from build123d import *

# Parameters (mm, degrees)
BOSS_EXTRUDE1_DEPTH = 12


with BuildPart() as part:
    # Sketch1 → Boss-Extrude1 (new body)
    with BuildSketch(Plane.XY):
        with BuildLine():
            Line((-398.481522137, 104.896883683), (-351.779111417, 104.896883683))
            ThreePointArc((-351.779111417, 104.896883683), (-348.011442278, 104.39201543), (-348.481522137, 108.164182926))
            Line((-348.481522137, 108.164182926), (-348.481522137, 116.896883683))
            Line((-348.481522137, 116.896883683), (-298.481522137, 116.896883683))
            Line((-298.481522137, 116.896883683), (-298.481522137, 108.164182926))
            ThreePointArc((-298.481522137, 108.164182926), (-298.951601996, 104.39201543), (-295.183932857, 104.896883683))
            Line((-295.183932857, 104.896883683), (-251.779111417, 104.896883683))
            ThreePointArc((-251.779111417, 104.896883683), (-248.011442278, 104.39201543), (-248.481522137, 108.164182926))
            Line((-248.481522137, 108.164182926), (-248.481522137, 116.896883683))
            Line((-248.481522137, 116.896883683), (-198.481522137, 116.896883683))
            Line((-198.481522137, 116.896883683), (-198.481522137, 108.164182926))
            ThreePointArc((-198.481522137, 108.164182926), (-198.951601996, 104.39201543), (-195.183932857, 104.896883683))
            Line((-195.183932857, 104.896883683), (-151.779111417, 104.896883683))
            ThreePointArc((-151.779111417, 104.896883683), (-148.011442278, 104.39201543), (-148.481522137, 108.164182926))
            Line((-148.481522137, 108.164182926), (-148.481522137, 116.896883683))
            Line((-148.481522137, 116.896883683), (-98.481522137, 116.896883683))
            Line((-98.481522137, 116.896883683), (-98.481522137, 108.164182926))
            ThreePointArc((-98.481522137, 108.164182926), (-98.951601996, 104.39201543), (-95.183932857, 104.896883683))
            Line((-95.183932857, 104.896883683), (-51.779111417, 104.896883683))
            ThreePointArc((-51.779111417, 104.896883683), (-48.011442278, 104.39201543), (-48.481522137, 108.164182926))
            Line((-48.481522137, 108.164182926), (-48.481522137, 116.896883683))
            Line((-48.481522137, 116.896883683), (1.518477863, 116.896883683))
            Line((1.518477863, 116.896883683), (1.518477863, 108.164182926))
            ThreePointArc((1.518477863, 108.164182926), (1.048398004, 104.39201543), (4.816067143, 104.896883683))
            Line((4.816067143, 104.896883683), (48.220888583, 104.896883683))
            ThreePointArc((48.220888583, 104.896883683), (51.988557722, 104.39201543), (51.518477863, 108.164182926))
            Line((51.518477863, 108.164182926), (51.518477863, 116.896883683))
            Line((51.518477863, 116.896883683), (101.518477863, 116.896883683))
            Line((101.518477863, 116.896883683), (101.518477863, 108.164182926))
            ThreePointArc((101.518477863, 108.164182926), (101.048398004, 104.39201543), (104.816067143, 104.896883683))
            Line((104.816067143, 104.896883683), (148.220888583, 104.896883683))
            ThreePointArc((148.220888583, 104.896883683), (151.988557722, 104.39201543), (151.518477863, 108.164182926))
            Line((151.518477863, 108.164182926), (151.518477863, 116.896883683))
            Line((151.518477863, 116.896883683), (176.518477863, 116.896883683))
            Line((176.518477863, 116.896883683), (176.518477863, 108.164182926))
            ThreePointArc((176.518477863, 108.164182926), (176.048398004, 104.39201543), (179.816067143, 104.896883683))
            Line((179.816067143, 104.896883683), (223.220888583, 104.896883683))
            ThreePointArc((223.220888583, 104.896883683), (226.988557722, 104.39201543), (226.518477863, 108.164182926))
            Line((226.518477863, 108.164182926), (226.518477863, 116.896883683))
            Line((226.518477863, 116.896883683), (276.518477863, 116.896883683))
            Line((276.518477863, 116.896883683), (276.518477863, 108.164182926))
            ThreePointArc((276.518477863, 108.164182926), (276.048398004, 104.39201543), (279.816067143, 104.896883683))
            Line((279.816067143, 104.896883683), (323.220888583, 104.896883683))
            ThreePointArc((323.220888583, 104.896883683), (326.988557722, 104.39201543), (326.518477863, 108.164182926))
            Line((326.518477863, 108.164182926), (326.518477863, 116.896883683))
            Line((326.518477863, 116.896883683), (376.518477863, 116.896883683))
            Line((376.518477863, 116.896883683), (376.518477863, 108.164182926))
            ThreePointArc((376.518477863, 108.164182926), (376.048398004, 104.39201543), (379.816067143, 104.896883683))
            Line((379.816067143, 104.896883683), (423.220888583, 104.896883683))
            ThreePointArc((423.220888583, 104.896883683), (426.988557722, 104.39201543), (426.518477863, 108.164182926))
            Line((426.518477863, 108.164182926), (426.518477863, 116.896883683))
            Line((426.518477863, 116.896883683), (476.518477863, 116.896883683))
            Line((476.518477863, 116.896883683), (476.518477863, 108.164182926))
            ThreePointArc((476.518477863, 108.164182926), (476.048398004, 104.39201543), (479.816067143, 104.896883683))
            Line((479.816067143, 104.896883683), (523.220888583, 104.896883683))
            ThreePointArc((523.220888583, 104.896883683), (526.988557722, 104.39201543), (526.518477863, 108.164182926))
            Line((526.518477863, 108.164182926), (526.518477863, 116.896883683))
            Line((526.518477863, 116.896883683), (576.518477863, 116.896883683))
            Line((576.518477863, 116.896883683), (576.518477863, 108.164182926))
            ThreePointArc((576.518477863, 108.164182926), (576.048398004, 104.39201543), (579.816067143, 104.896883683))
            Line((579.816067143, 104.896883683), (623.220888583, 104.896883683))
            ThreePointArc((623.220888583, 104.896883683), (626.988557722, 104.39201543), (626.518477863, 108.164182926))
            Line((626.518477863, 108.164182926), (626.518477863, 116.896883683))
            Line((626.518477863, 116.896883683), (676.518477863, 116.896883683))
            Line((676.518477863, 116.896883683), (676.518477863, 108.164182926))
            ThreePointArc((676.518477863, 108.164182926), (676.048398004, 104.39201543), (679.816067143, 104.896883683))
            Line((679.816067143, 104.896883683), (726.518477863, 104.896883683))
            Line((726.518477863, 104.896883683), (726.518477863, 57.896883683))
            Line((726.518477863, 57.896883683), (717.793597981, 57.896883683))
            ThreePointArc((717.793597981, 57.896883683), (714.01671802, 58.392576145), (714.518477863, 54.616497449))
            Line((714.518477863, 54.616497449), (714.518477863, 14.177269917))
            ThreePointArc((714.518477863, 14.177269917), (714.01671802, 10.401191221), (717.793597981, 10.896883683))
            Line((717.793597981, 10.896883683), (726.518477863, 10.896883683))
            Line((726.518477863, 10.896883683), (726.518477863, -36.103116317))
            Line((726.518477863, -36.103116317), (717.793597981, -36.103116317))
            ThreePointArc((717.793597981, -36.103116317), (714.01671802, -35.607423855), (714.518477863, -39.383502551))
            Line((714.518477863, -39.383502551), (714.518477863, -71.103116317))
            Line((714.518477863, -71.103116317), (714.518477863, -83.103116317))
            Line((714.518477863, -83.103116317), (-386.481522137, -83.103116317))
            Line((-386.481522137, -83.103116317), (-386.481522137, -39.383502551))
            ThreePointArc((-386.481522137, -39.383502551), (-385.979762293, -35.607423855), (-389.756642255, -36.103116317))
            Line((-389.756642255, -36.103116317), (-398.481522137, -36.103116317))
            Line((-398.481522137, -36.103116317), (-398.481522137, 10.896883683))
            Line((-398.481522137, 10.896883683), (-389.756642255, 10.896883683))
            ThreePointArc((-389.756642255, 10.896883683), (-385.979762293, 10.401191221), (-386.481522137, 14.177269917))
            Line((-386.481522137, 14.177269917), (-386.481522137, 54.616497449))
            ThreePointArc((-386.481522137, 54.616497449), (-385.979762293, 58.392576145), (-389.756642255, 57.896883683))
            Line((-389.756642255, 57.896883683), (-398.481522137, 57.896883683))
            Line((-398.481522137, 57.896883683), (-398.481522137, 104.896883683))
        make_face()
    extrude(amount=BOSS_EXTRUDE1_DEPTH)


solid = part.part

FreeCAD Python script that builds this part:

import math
import FreeCAD as App
import Part
import Sketcher

V = App.Vector
Q = App.Units.Quantity

doc = App.newDocument("Part")
body = doc.addObject("PartDesign::Body", "Body")

# Sketch on XY plane
sketch1 = doc.addObject("Sketcher::SketchObject", "Sketch")
body.addObject(sketch1)
sketch1.AttachmentSupport = (doc.XY_Plane, [""])
sketch1.MapMode = "FlatFace"
sketch1.addGeometry(Part.LineSegment(V(-351.8, 104.9, 0), V(-398.5, 104.9, 0)), False)
sketch1.addGeometry(Part.LineSegment(V(-398.5, 104.9, 0), V(-398.5, 57.9, 0)), False)
sketch1.addGeometry(Part.LineSegment(V(-398.5, 57.9, 0), V(-389.8, 57.9, 0)), False)
sketch1.addGeometry(Part.ArcOfCircle(Part.Circle(V(-387.7, 56.7, 0), V(0, 0, 1), 2.4), math.radians(-60), math.radians(150)), False)
sketch1.addGeometry(Part.LineSegment(V(-386.5, 54.6, 0), V(-386.5, 14.2, 0)), False)
sketch1.addGeometry(Part.ArcOfCircle(Part.Circle(V(-387.7, 12.1, 0), V(0, 0, 1), 2.4), math.radians(-150), math.radians(60)), False)
sketch1.addGeometry(Part.LineSegment(V(-389.8, 10.9, 0), V(-398.5, 10.9, 0)), False)
sketch1.addGeometry(Part.LineSegment(V(-398.5, 10.9, 0), V(-398.5, -36.1, 0)), False)
sketch1.addGeometry(Part.LineSegment(V(-398.5, -36.1, 0), V(-389.8, -36.1, 0)), False)
sketch1.addGeometry(Part.ArcOfCircle(Part.Circle(V(-387.7, -37.3, 0), V(0, 0, 1), 2.4), math.radians(-60), math.radians(150)), False)
sketch1.addGeometry(Part.LineSegment(V(-386.5, -39.4, 0), V(-386.5, -83.1, 0)), False)
sketch1.addGeometry(Part.LineSegment(V(-386.5, -83.1, 0), V(714.5, -83.1, 0)), False)
sketch1.addGeometry(Part.LineSegment(V(714.5, -83.1, 0), V(714.5, -39.4, 0)), False)
sketch1.addGeometry(Part.ArcOfCircle(Part.Circle(V(715.7, -37.3, 0), V(0, 0, 1), 2.4), math.radians(30), math.radians(240)), False)
sketch1.addGeometry(Part.LineSegment(V(717.8, -36.1, 0), V(726.5, -36.1, 0)), False)
sketch1.addGeometry(Part.LineSegment(V(726.5, -36.1, 0), V(726.5, 10.9, 0)), False)
sketch1.addGeometry(Part.LineSegment(V(726.5, 10.9, 0), V(717.8, 10.9, 0)), False)
sketch1.addGeometry(Part.ArcOfCircle(Part.Circle(V(715.7, 12.1, 0), V(0, 0, 1), 2.4), math.radians(120), math.radians(330)), False)
sketch1.addGeometry(Part.LineSegment(V(714.5, 14.2, 0), V(714.5, 54.6, 0)), False)
sketch1.addGeometry(Part.ArcOfCircle(Part.Circle(V(715.7, 56.7, 0), V(0, 0, 1), 2.4), math.radians(30), math.radians(240)), False)
sketch1.addGeometry(Part.LineSegment(V(717.8, 57.9, 0), V(726.5, 57.9, 0)), False)
sketch1.addGeometry(Part.LineSegment(V(726.5, 57.9, 0), V(726.5, 104.9, 0)), False)
sketch1.addGeometry(Part.LineSegment(V(726.5, 104.9, 0), V(679.8, 104.9, 0)), False)
sketch1.addGeometry(Part.ArcOfCircle(Part.Circle(V(677.7, 106.1, 0), V(0, 0, 1), 2.4), math.radians(121), math.radians(330)), False)
sketch1.addGeometry(Part.LineSegment(V(676.5, 108.2, 0), V(676.5, 116.9, 0)), False)
sketch1.addGeometry(Part.LineSegment(V(676.5, 116.9, 0), V(626.5, 116.9, 0)), False)
sketch1.addGeometry(Part.LineSegment(V(626.5, 116.9, 0), V(626.5, 108.2, 0)), False)
sketch1.addGeometry(Part.ArcOfCircle(Part.Circle(V(625.3, 106.1, 0), V(0, 0, 1), 2.4), math.radians(-150), math.radians(59)), False)
sketch1.addGeometry(Part.LineSegment(V(623.2, 104.9, 0), V(579.8, 104.9, 0)), False)
sketch1.addGeometry(Part.ArcOfCircle(Part.Circle(V(577.7, 106.1, 0), V(0, 0, 1), 2.4), math.radians(121), math.radians(330)), False)
sketch1.addGeometry(Part.LineSegment(V(576.5, 108.2, 0), V(576.5, 116.9, 0)), False)
sketch1.addGeometry(Part.LineSegment(V(576.5, 116.9, 0), V(526.5, 116.9, 0)), False)
sketch1.addGeometry(Part.LineSegment(V(526.5, 116.9, 0), V(526.5, 108.2, 0)), False)
sketch1.addGeometry(Part.ArcOfCircle(Part.Circle(V(525.3, 106.1, 0), V(0, 0, 1), 2.4), math.radians(-150), math.radians(59)), False)
sketch1.addGeometry(Part.LineSegment(V(523.2, 104.9, 0), V(479.8, 104.9, 0)), False)
sketch1.addGeometry(Part.ArcOfCircle(Part.Circle(V(477.7, 106.1, 0), V(0, 0, 1), 2.4), math.radians(121), math.radians(330)), False)
sketch1.addGeometry(Part.LineSegment(V(476.5, 108.2, 0), V(476.5, 116.9, 0)), False)
sketch1.addGeometry(Part.LineSegment(V(476.5, 116.9, 0), V(426.5, 116.9, 0)), False)
sketch1.addGeometry(Part.LineSegment(V(426.5, 116.9, 0), V(426.5, 108.2, 0)), False)
sketch1.addGeometry(Part.ArcOfCircle(Part.Circle(V(425.3, 106.1, 0), V(0, 0, 1), 2.4), math.radians(-150), math.radians(59)), False)
sketch1.addGeometry(Part.LineSegment(V(423.2, 104.9, 0), V(379.8, 104.9, 0)), False)
sketch1.addGeometry(Part.ArcOfCircle(Part.Circle(V(377.7, 106.1, 0), V(0, 0, 1), 2.4), math.radians(121), math.radians(330)), False)
sketch1.addGeometry(Part.LineSegment(V(376.5, 108.2, 0), V(376.5, 116.9, 0)), False)
sketch1.addGeometry(Part.LineSegment(V(376.5, 116.9, 0), V(326.5, 116.9, 0)), False)
sketch1.addGeometry(Part.LineSegment(V(326.5, 116.9, 0), V(326.5, 108.2, 0)), False)
sketch1.addGeometry(Part.ArcOfCircle(Part.Circle(V(325.3, 106.1, 0), V(0, 0, 1), 2.4), math.radians(-150), math.radians(59)), False)
sketch1.addGeometry(Part.LineSegment(V(323.2, 104.9, 0), V(279.8, 104.9, 0)), False)
sketch1.addGeometry(Part.ArcOfCircle(Part.Circle(V(277.7, 106.1, 0), V(0, 0, 1), 2.4), math.radians(121), math.radians(330)), False)
sketch1.addGeometry(Part.LineSegment(V(276.5, 108.2, 0), V(276.5, 116.9, 0)), False)
sketch1.addGeometry(Part.LineSegment(V(276.5, 116.9, 0), V(226.5, 116.9, 0)), False)
sketch1.addGeometry(Part.LineSegment(V(226.5, 116.9, 0), V(226.5, 108.2, 0)), False)
sketch1.addGeometry(Part.ArcOfCircle(Part.Circle(V(225.3, 106.1, 0), V(0, 0, 1), 2.4), math.radians(-150), math.radians(59)), False)
sketch1.addGeometry(Part.LineSegment(V(223.2, 104.9, 0), V(179.8, 104.9, 0)), False)
sketch1.addGeometry(Part.ArcOfCircle(Part.Circle(V(177.7, 106.1, 0), V(0, 0, 1), 2.4), math.radians(121), math.radians(330)), False)
sketch1.addGeometry(Part.LineSegment(V(176.5, 108.2, 0), V(176.5, 116.9, 0)), False)
sketch1.addGeometry(Part.LineSegment(V(176.5, 116.9, 0), V(151.5, 116.9, 0)), False)
sketch1.addGeometry(Part.LineSegment(V(151.5, 116.9, 0), V(151.5, 108.2, 0)), False)
sketch1.addGeometry(Part.ArcOfCircle(Part.Circle(V(150.3, 106.1, 0), V(0, 0, 1), 2.4), math.radians(-150), math.radians(59)), False)
sketch1.addGeometry(Part.LineSegment(V(148.2, 104.9, 0), V(104.8, 104.9, 0)), False)
sketch1.addGeometry(Part.ArcOfCircle(Part.Circle(V(102.7, 106.1, 0), V(0, 0, 1), 2.4), math.radians(121), math.radians(330)), False)
sketch1.addGeometry(Part.LineSegment(V(101.5, 108.2, 0), V(101.5, 116.9, 0)), False)
sketch1.addGeometry(Part.LineSegment(V(101.5, 116.9, 0), V(51.5, 116.9, 0)), False)
sketch1.addGeometry(Part.LineSegment(V(51.5, 116.9, 0), V(51.5, 108.2, 0)), False)
sketch1.addGeometry(Part.ArcOfCircle(Part.Circle(V(50.3, 106.1, 0), V(0, 0, 1), 2.4), math.radians(-150), math.radians(59)), False)
sketch1.addGeometry(Part.LineSegment(V(48.2, 104.9, 0), V(4.8, 104.9, 0)), False)
sketch1.addGeometry(Part.ArcOfCircle(Part.Circle(V(2.7, 106.1, 0), V(0, 0, 1), 2.4), math.radians(121), math.radians(330)), False)
sketch1.addGeometry(Part.LineSegment(V(1.5, 108.2, 0), V(1.5, 116.9, 0)), False)
sketch1.addGeometry(Part.LineSegment(V(1.5, 116.9, 0), V(-48.5, 116.9, 0)), False)
sketch1.addGeometry(Part.LineSegment(V(-48.5, 116.9, 0), V(-48.5, 108.2, 0)), False)
sketch1.addGeometry(Part.ArcOfCircle(Part.Circle(V(-49.7, 106.1, 0), V(0, 0, 1), 2.4), math.radians(-150), math.radians(59)), False)
sketch1.addGeometry(Part.LineSegment(V(-51.8, 104.9, 0), V(-95.2, 104.9, 0)), False)
sketch1.addGeometry(Part.ArcOfCircle(Part.Circle(V(-97.3, 106.1, 0), V(0, 0, 1), 2.4), math.radians(121), math.radians(330)), False)
sketch1.addGeometry(Part.LineSegment(V(-98.5, 108.2, 0), V(-98.5, 116.9, 0)), False)
sketch1.addGeometry(Part.LineSegment(V(-98.5, 116.9, 0), V(-148.5, 116.9, 0)), False)
sketch1.addGeometry(Part.LineSegment(V(-148.5, 116.9, 0), V(-148.5, 108.2, 0)), False)
sketch1.addGeometry(Part.ArcOfCircle(Part.Circle(V(-149.7, 106.1, 0), V(0, 0, 1), 2.4), math.radians(-150), math.radians(59)), False)
sketch1.addGeometry(Part.LineSegment(V(-151.8, 104.9, 0), V(-195.2, 104.9, 0)), False)
sketch1.addGeometry(Part.ArcOfCircle(Part.Circle(V(-197.3, 106.1, 0), V(0, 0, 1), 2.4), math.radians(121), math.radians(330)), False)
sketch1.addGeometry(Part.LineSegment(V(-198.5, 108.2, 0), V(-198.5, 116.9, 0)), False)
sketch1.addGeometry(Part.LineSegment(V(-198.5, 116.9, 0), V(-248.5, 116.9, 0)), False)
sketch1.addGeometry(Part.LineSegment(V(-248.5, 116.9, 0), V(-248.5, 108.2, 0)), False)
sketch1.addGeometry(Part.ArcOfCircle(Part.Circle(V(-249.7, 106.1, 0), V(0, 0, 1), 2.4), math.radians(-150), math.radians(59)), False)
sketch1.addGeometry(Part.LineSegment(V(-251.8, 104.9, 0), V(-295.2, 104.9, 0)), False)
sketch1.addGeometry(Part.ArcOfCircle(Part.Circle(V(-297.3, 106.1, 0), V(0, 0, 1), 2.4), math.radians(121), math.radians(330)), False)
sketch1.addGeometry(Part.LineSegment(V(-298.5, 108.2, 0), V(-298.5, 116.9, 0)), False)
sketch1.addGeometry(Part.LineSegment(V(-298.5, 116.9, 0), V(-348.5, 116.9, 0)), False)
sketch1.addGeometry(Part.LineSegment(V(-348.5, 116.9, 0), V(-348.5, 108.2, 0)), False)
sketch1.addGeometry(Part.ArcOfCircle(Part.Circle(V(-349.7, 106.1, 0), V(0, 0, 1), 2.4), math.radians(-150), math.radians(59)), False)
sketch1.addConstraint(Sketcher.Constraint("Coincident", 0, 2, 1, 1))
sketch1.addConstraint(Sketcher.Constraint("Coincident", 1, 2, 2, 1))
sketch1.addConstraint(Sketcher.Constraint("Coincident", 2, 2, 3, 2))
sketch1.addConstraint(Sketcher.Constraint("Coincident", 3, 1, 4, 1))
sketch1.addConstraint(Sketcher.Constraint("Coincident", 4, 2, 5, 2))
sketch1.addConstraint(Sketcher.Constraint("Coincident", 5, 1, 6, 1))
sketch1.addConstraint(Sketcher.Constraint("Coincident", 6, 2, 7, 1))
sketch1.addConstraint(Sketcher.Constraint("Coincident", 7, 2, 8, 1))
sketch1.addConstraint(Sketcher.Constraint("Coincident", 8, 2, 9, 2))
sketch1.addConstraint(Sketcher.Constraint("Coincident", 9, 1, 10, 1))
sketch1.addConstraint(Sketcher.Constraint("Coincident", 10, 2, 11, 1))
sketch1.addConstraint(Sketcher.Constraint("Coincident", 11, 2, 12, 1))
sketch1.addConstraint(Sketcher.Constraint("Coincident", 12, 2, 13, 2))
sketch1.addConstraint(Sketcher.Constraint("Coincident", 13, 1, 14, 1))
sketch1.addConstraint(Sketcher.Constraint("Coincident", 14, 2, 15, 1))
sketch1.addConstraint(Sketcher.Constraint("Coincident", 15, 2, 16, 1))
sketch1.addConstraint(Sketcher.Constraint("Coincident", 16, 2, 17, 2))
sketch1.addConstraint(Sketcher.Constraint("Coincident", 17, 1, 18, 1))
sketch1.addConstraint(Sketcher.Constraint("Coincident", 18, 2, 19, 2))
sketch1.addConstraint(Sketcher.Constraint("Coincident", 19, 1, 20, 1))
sketch1.addConstraint(Sketcher.Constraint("Coincident", 20, 2, 21, 1))
sketch1.addConstraint(Sketcher.Constraint("Coincident", 21, 2, 22, 1))
sketch1.addConstraint(Sketcher.Constraint("Coincident", 22, 2, 23, 2))
sketch1.addConstraint(Sketcher.Constraint("Coincident", 23, 1, 24, 1))
sketch1.addConstraint(Sketcher.Constraint("Coincident", 24, 2, 25, 1))
sketch1.addConstraint(Sketcher.Constraint("Coincident", 25, 2, 26, 1))
sketch1.addConstraint(Sketcher.Constraint("Coincident", 26, 2, 27, 2))
sketch1.addConstraint(Sketcher.Constraint("Coincident", 27, 1, 28, 1))
sketch1.addConstraint(Sketcher.Constraint("Coincident", 28, 2, 29, 2))
sketch1.addConstraint(Sketcher.Constraint("Coincident", 29, 1, 30, 1))
sketch1.addConstraint(Sketcher.Constraint("Coincident", 30, 2, 31, 1))
sketch1.addConstraint(Sketcher.Constraint("Coincident", 31, 2, 32, 1))
sketch1.addConstraint(Sketcher.Constraint("Coincident", 32, 2, 33, 2))
sketch1.addConstraint(Sketcher.Constraint("Coincident", 33, 1, 34, 1))
sketch1.addConstraint(Sketcher.Constraint("Coincident", 34, 2, 35, 2))
sketch1.addConstraint(Sketcher.Constraint("Coincident", 35, 1, 36, 1))
sketch1.addConstraint(Sketcher.Constraint("Coincident", 36, 2, 37, 1))
sketch1.addConstraint(Sketcher.Constraint("Coincident", 37, 2, 38, 1))
sketch1.addConstraint(Sketcher.Constraint("Coincident", 38, 2, 39, 2))
sketch1.addConstraint(Sketcher.Constraint("Coincident", 39, 1, 40, 1))
sketch1.addConstraint(Sketcher.Constraint("Coincident", 40, 2, 41, 2))
sketch1.addConstraint(Sketcher.Constraint("Coincident", 41, 1, 42, 1))
sketch1.addConstraint(Sketcher.Constraint("Coincident", 42, 2, 43, 1))
sketch1.addConstraint(Sketcher.Constraint("Coincident", 43, 2, 44, 1))
sketch1.addConstraint(Sketcher.Constraint("Coincident", 44, 2, 45, 2))
sketch1.addConstraint(Sketcher.Constraint("Coincident", 45, 1, 46, 1))
sketch1.addConstraint(Sketcher.Constraint("Coincident", 46, 2, 47, 2))
sketch1.addConstraint(Sketcher.Constraint("Coincident", 47, 1, 48, 1))
sketch1.addConstraint(Sketcher.Constraint("Coincident", 48, 2, 49, 1))
sketch1.addConstraint(Sketcher.Constraint("Coincident", 49, 2, 50, 1))
sketch1.addConstraint(Sketcher.Constraint("Coincident", 50, 2, 51, 2))
sketch1.addConstraint(Sketcher.Constraint("Coincident", 51, 1, 52, 1))
sketch1.addConstraint(Sketcher.Constraint("Coincident", 52, 2, 53, 2))
sketch1.addConstraint(Sketcher.Constraint("Coincident", 53, 1, 54, 1))
sketch1.addConstraint(Sketcher.Constraint("Coincident", 54, 2, 55, 1))
sketch1.addConstraint(Sketcher.Constraint("Coincident", 55, 2, 56, 1))
sketch1.addConstraint(Sketcher.Constraint("Coincident", 56, 2, 57, 2))
sketch1.addConstraint(Sketcher.Constraint("Coincident", 57, 1, 58, 1))
sketch1.addConstraint(Sketcher.Constraint("Coincident", 58, 2, 59, 2))
sketch1.addConstraint(Sketcher.Constraint("Coincident", 59, 1, 60, 1))
sketch1.addConstraint(Sketcher.Constraint("Coincident", 60, 2, 61, 1))
sketch1.addConstraint(Sketcher.Constraint("Coincident", 61, 2, 62, 1))
sketch1.addConstraint(Sketcher.Constraint("Coincident", 62, 2, 63, 2))
sketch1.addConstraint(Sketcher.Constraint("Coincident", 63, 1, 64, 1))
sketch1.addConstraint(Sketcher.Constraint("Coincident", 64, 2, 65, 2))
sketch1.addConstraint(Sketcher.Constraint("Coincident", 65, 1, 66, 1))
sketch1.addConstraint(Sketcher.Constraint("Coincident", 66, 2, 67, 1))
sketch1.addConstraint(Sketcher.Constraint("Coincident", 67, 2, 68, 1))
sketch1.addConstraint(Sketcher.Constraint("Coincident", 68, 2, 69, 2))
sketch1.addConstraint(Sketcher.Constraint("Coincident", 69, 1, 70, 1))
sketch1.addConstraint(Sketcher.Constraint("Coincident", 70, 2, 71, 2))
sketch1.addConstraint(Sketcher.Constraint("Coincident", 71, 1, 72, 1))
sketch1.addConstraint(Sketcher.Constraint("Coincident", 72, 2, 73, 1))
sketch1.addConstraint(Sketcher.Constraint("Coincident", 73, 2, 74, 1))
sketch1.addConstraint(Sketcher.Constraint("Coincident", 74, 2, 75, 2))
sketch1.addConstraint(Sketcher.Constraint("Coincident", 75, 1, 76, 1))
sketch1.addConstraint(Sketcher.Constraint("Coincident", 76, 2, 77, 2))
sketch1.addConstraint(Sketcher.Constraint("Coincident", 77, 1, 78, 1))
sketch1.addConstraint(Sketcher.Constraint("Coincident", 78, 2, 79, 1))
sketch1.addConstraint(Sketcher.Constraint("Coincident", 79, 2, 80, 1))
sketch1.addConstraint(Sketcher.Constraint("Coincident", 80, 2, 81, 2))
sketch1.addConstraint(Sketcher.Constraint("Coincident", 81, 1, 82, 1))
sketch1.addConstraint(Sketcher.Constraint("Coincident", 82, 2, 83, 2))
sketch1.addConstraint(Sketcher.Constraint("Coincident", 83, 1, 84, 1))
sketch1.addConstraint(Sketcher.Constraint("Coincident", 84, 2, 85, 1))
sketch1.addConstraint(Sketcher.Constraint("Coincident", 85, 2, 86, 1))
sketch1.addConstraint(Sketcher.Constraint("Coincident", 86, 2, 87, 2))
sketch1.addConstraint(Sketcher.Constraint("Coincident", 87, 1, 0, 1))
sketch1.addConstraint(Sketcher.Constraint("Horizontal", 0))
sketch1.addConstraint(Sketcher.Constraint("Vertical", 1))
sketch1.addConstraint(Sketcher.Constraint("Horizontal", 2))
sketch1.addConstraint(Sketcher.Constraint("Vertical", 4))
sketch1.addConstraint(Sketcher.Constraint("Horizontal", 6))
sketch1.addConstraint(Sketcher.Constraint("Vertical", 7))
sketch1.addConstraint(Sketcher.Constraint("Horizontal", 8))
sketch1.addConstraint(Sketcher.Constraint("Vertical", 10))
sketch1.addConstraint(Sketcher.Constraint("Horizontal", 11))
sketch1.addConstraint(Sketcher.Constraint("Vertical", 12))
sketch1.addConstraint(Sketcher.Constraint("Horizontal", 14))
sketch1.addConstraint(Sketcher.Constraint("Vertical", 15))
sketch1.addConstraint(Sketcher.Constraint("Horizontal", 16))
sketch1.addConstraint(Sketcher.Constraint("Vertical", 18))
sketch1.addConstraint(Sketcher.Constraint("Horizontal", 20))
sketch1.addConstraint(Sketcher.Constraint("Vertical", 21))
sketch1.addConstraint(Sketcher.Constraint("Horizontal", 22))
sketch1.addConstraint(Sketcher.Constraint("Vertical", 24))
sketch1.addConstraint(Sketcher.Constraint("Horizontal", 25))
sketch1.addConstraint(Sketcher.Constraint("Vertical", 26))
sketch1.addConstraint(Sketcher.Constraint("Horizontal", 28))
sketch1.addConstraint(Sketcher.Constraint("Vertical", 30))
sketch1.addConstraint(Sketcher.Constraint("Horizontal", 31))
sketch1.addConstraint(Sketcher.Constraint("Vertical", 32))
sketch1.addConstraint(Sketcher.Constraint("Horizontal", 34))
sketch1.addConstraint(Sketcher.Constraint("Vertical", 36))
sketch1.addConstraint(Sketcher.Constraint("Horizontal", 37))
sketch1.addConstraint(Sketcher.Constraint("Vertical", 38))
sketch1.addConstraint(Sketcher.Constraint("Horizontal", 40))
sketch1.addConstraint(Sketcher.Constraint("Vertical", 42))
sketch1.addConstraint(Sketcher.Constraint("Horizontal", 43))
sketch1.addConstraint(Sketcher.Constraint("Vertical", 44))
sketch1.addConstraint(Sketcher.Constraint("Horizontal", 46))
sketch1.addConstraint(Sketcher.Constraint("Vertical", 48))
sketch1.addConstraint(Sketcher.Constraint("Horizontal", 49))
sketch1.addConstraint(Sketcher.Constraint("Vertical", 50))
sketch1.addConstraint(Sketcher.Constraint("Horizontal", 52))
sketch1.addConstraint(Sketcher.Constraint("Vertical", 54))
sketch1.addConstraint(Sketcher.Constraint("Horizontal", 55))
sketch1.addConstraint(Sketcher.Constraint("Vertical", 56))
sketch1.addConstraint(Sketcher.Constraint("Horizontal", 58))
sketch1.addConstraint(Sketcher.Constraint("Vertical", 60))
sketch1.addConstraint(Sketcher.Constraint("Horizontal", 61))
sketch1.addConstraint(Sketcher.Constraint("Vertical", 62))
sketch1.addConstraint(Sketcher.Constraint("Horizontal", 64))
sketch1.addConstraint(Sketcher.Constraint("Vertical", 66))
sketch1.addConstraint(Sketcher.Constraint("Horizontal", 67))
sketch1.addConstraint(Sketcher.Constraint("Vertical", 68))
sketch1.addConstraint(Sketcher.Constraint("Horizontal", 70))
sketch1.addConstraint(Sketcher.Constraint("Vertical", 72))
sketch1.addConstraint(Sketcher.Constraint("Horizontal", 73))
sketch1.addConstraint(Sketcher.Constraint("Vertical", 74))
sketch1.addConstraint(Sketcher.Constraint("Horizontal", 76))
sketch1.addConstraint(Sketcher.Constraint("Vertical", 78))
sketch1.addConstraint(Sketcher.Constraint("Horizontal", 79))
sketch1.addConstraint(Sketcher.Constraint("Vertical", 80))
sketch1.addConstraint(Sketcher.Constraint("Horizontal", 82))
sketch1.addConstraint(Sketcher.Constraint("Vertical", 84))
sketch1.addConstraint(Sketcher.Constraint("Horizontal", 85))
sketch1.addConstraint(Sketcher.Constraint("Vertical", 86))
sketch1.addConstraint(Sketcher.Constraint("Equal", 3, 5))
sketch1.addConstraint(Sketcher.Constraint("Equal", 5, 9))
sketch1.addConstraint(Sketcher.Constraint("Equal", 9, 13))
sketch1.addConstraint(Sketcher.Constraint("Equal", 13, 17))
sketch1.addConstraint(Sketcher.Constraint("Equal", 17, 19))
sketch1.addConstraint(Sketcher.Constraint("Equal", 19, 23))
sketch1.addConstraint(Sketcher.Constraint("Equal", 23, 27))
sketch1.addConstraint(Sketcher.Constraint("Equal", 27, 29))
sketch1.addConstraint(Sketcher.Constraint("Equal", 29, 33))
sketch1.addConstraint(Sketcher.Constraint("Equal", 33, 35))
sketch1.addConstraint(Sketcher.Constraint("Equal", 35, 39))
sketch1.addConstraint(Sketcher.Constraint("Equal", 39, 41))
sketch1.addConstraint(Sketcher.Constraint("Equal", 41, 45))
sketch1.addConstraint(Sketcher.Constraint("Equal", 45, 47))
sketch1.addConstraint(Sketcher.Constraint("Equal", 47, 51))
sketch1.addConstraint(Sketcher.Constraint("Equal", 51, 53))
sketch1.addConstraint(Sketcher.Constraint("Equal", 53, 57))
sketch1.addConstraint(Sketcher.Constraint("Equal", 57, 59))
sketch1.addConstraint(Sketcher.Constraint("Equal", 59, 63))
sketch1.addConstraint(Sketcher.Constraint("Equal", 63, 65))
sketch1.addConstraint(Sketcher.Constraint("Equal", 65, 69))
sketch1.addConstraint(Sketcher.Constraint("Equal", 69, 71))
sketch1.addConstraint(Sketcher.Constraint("Equal", 71, 75))
sketch1.addConstraint(Sketcher.Constraint("Equal", 75, 77))
sketch1.addConstraint(Sketcher.Constraint("Equal", 77, 81))
sketch1.addConstraint(Sketcher.Constraint("Equal", 81, 83))
sketch1.addConstraint(Sketcher.Constraint("Equal", 83, 87))
sketch1.addConstraint(Sketcher.Constraint("Horizontal", 9, 3, 13, 3))
sketch1.addConstraint(Sketcher.Constraint("Horizontal", 5, 3, 17, 3))
sketch1.addConstraint(Sketcher.Constraint("Horizontal", 3, 3, 19, 3))
sketch1.addConstraint(Sketcher.Constraint("Horizontal", 23, 3, 27, 3))
sketch1.addConstraint(Sketcher.Constraint("Horizontal", 27, 3, 29, 3))
sketch1.addConstraint(Sketcher.Constraint("Horizontal", 29, 3, 33, 3))
sketch1.addConstraint(Sketcher.Constraint("Horizontal", 33, 3, 35, 3))
sketch1.addConstraint(Sketcher.Constraint("Horizontal", 35, 3, 39, 3))
sketch1.addConstraint(Sketcher.Constraint("Horizontal", 39, 3, 41, 3))
sketch1.addConstraint(Sketcher.Constraint("Horizontal", 41, 3, 45, 3))
sketch1.addConstraint(Sketcher.Constraint("Horizontal", 45, 3, 47, 3))
sketch1.addConstraint(Sketcher.Constraint("Horizontal", 47, 3, 51, 3))
sketch1.addConstraint(Sketcher.Constraint("Horizontal", 51, 3, 53, 3))
sketch1.addConstraint(Sketcher.Constraint("Horizontal", 53, 3, 57, 3))
sketch1.addConstraint(Sketcher.Constraint("Horizontal", 57, 3, 59, 3))
sketch1.addConstraint(Sketcher.Constraint("Horizontal", 59, 3, 63, 3))
sketch1.addConstraint(Sketcher.Constraint("Horizontal", 63, 3, 65, 3))
sketch1.addConstraint(Sketcher.Constraint("Horizontal", 65, 3, 69, 3))
sketch1.addConstraint(Sketcher.Constraint("Horizontal", 69, 3, 71, 3))
sketch1.addConstraint(Sketcher.Constraint("Horizontal", 71, 3, 75, 3))
sketch1.addConstraint(Sketcher.Constraint("Horizontal", 75, 3, 77, 3))
sketch1.addConstraint(Sketcher.Constraint("Horizontal", 77, 3, 81, 3))
sketch1.addConstraint(Sketcher.Constraint("Horizontal", 81, 3, 83, 3))
sketch1.addConstraint(Sketcher.Constraint("Horizontal", 83, 3, 87, 3))
sketch1.addConstraint(Sketcher.Constraint("Horizontal", 9, 1, 12, 2))
sketch1.addConstraint(Sketcher.Constraint("Horizontal", 8, 2, 13, 1))
sketch1.addConstraint(Sketcher.Constraint("Horizontal", 6, 2, 15, 2))
sketch1.addConstraint(Sketcher.Constraint("Horizontal", 4, 2, 17, 1))
sketch1.addConstraint(Sketcher.Constraint("Horizontal", 3, 1, 18, 2))
sketch1.addConstraint(Sketcher.Constraint("Horizontal", 2, 2, 19, 1))
sketch1.addConstraint(Sketcher.Constraint("Horizontal", 0, 2, 21, 2))
sketch1.addConstraint(Sketcher.Constraint("Horizontal", 23, 1, 26, 2))
sketch1.addConstraint(Sketcher.Constraint("Horizontal", 22, 2, 27, 1))
sketch1.addConstraint(Sketcher.Constraint("Horizontal", 26, 2, 29, 1))
sketch1.addConstraint(Sketcher.Constraint("Horizontal", 25, 2, 30, 2))
sketch1.addConstraint(Sketcher.Constraint("Horizontal", 29, 1, 32, 2))
sketch1.addConstraint(Sketcher.Constraint("Horizontal", 28, 2, 33, 1))
sketch1.addConstraint(Sketcher.Constraint("Horizontal", 32, 2, 35, 1))
sketch1.addConstraint(Sketcher.Constraint("Horizontal", 31, 2, 36, 2))
sketch1.addConstraint(Sketcher.Constraint("Horizontal", 35, 1, 38, 2))
sketch1.addConstraint(Sketcher.Constraint("Horizontal", 34, 2, 39, 1))
sketch1.addConstraint(Sketcher.Constraint("Horizontal", 38, 2, 41, 1))
sketch1.addConstraint(Sketcher.Constraint("Horizontal", 37, 2, 42, 2))
sketch1.addConstraint(Sketcher.Constraint("Horizontal", 41, 1, 44, 2))
sketch1.addConstraint(Sketcher.Constraint("Horizontal", 40, 2, 45, 1))
sketch1.addConstraint(Sketcher.Constraint("Horizontal", 44, 2, 47, 1))
sketch1.addConstraint(Sketcher.Constraint("Horizontal", 43, 2, 48, 2))
sketch1.addConstraint(Sketcher.Constraint("Horizontal", 47, 1, 50, 2))
sketch1.addConstraint(Sketcher.Constraint("Horizontal", 46, 2, 51, 1))
sketch1.addConstraint(Sketcher.Constraint("Horizontal", 50, 2, 53, 1))
sketch1.addConstraint(Sketcher.Constraint("Horizontal", 49, 2, 54, 2))
sketch1.addConstraint(Sketcher.Constraint("Horizontal", 53, 1, 56, 2))
sketch1.addConstraint(Sketcher.Constraint("Horizontal", 52, 2, 57, 1))
sketch1.addConstraint(Sketcher.Constraint("Horizontal", 56, 2, 59, 1))
sketch1.addConstraint(Sketcher.Constraint("Horizontal", 55, 2, 60, 2))
sketch1.addConstraint(Sketcher.Constraint("Horizontal", 59, 1, 62, 2))
sketch1.addConstraint(Sketcher.Constraint("Horizontal", 58, 2, 63, 1))
sketch1.addConstraint(Sketcher.Constraint("Horizontal", 62, 2, 65, 1))
sketch1.addConstraint(Sketcher.Constraint("Horizontal", 61, 2, 66, 2))
sketch1.addConstraint(Sketcher.Constraint("Horizontal", 65, 1, 68, 2))
sketch1.addConstraint(Sketcher.Constraint("Horizontal", 64, 2, 69, 1))
sketch1.addConstraint(Sketcher.Constraint("Horizontal", 68, 2, 71, 1))
sketch1.addConstraint(Sketcher.Constraint("Horizontal", 67, 2, 72, 2))
sketch1.addConstraint(Sketcher.Constraint("Horizontal", 71, 1, 74, 2))
sketch1.addConstraint(Sketcher.Constraint("Horizontal", 70, 2, 75, 1))
sketch1.addConstraint(Sketcher.Constraint("Horizontal", 74, 2, 77, 1))
sketch1.addConstraint(Sketcher.Constraint("Horizontal", 73, 2, 78, 2))
sketch1.addConstraint(Sketcher.Constraint("Horizontal", 77, 1, 80, 2))
sketch1.addConstraint(Sketcher.Constraint("Horizontal", 76, 2, 81, 1))
sketch1.addConstraint(Sketcher.Constraint("Horizontal", 80, 2, 83, 1))
sketch1.addConstraint(Sketcher.Constraint("Horizontal", 79, 2, 84, 2))
sketch1.addConstraint(Sketcher.Constraint("Horizontal", 83, 1, 86, 2))
sketch1.addConstraint(Sketcher.Constraint("Vertical", 3, 3, 5, 3))
sketch1.addConstraint(Sketcher.Constraint("Vertical", 5, 3, 9, 3))
sketch1.addConstraint(Sketcher.Constraint("Vertical", 13, 3, 17, 3))
sketch1.addConstraint(Sketcher.Constraint("Vertical", 2, 2, 5, 1))
sketch1.addConstraint(Sketcher.Constraint("Vertical", 1, 2, 6, 2))
sketch1.addConstraint(Sketcher.Constraint("Vertical", 5, 1, 8, 2))
sketch1.addConstraint(Sketcher.Constraint("Vertical", 4, 2, 9, 1))
sketch1.addConstraint(Sketcher.Constraint("Vertical", 15, 2, 20, 2))
sketch1.addConstraint(Sketcher.Constraint("Equal", 8, 14))
sketch1.addConstraint(Sketcher.Constraint("Equal", 0, 22))
sketch1.addConstraint(Sketcher.Constraint("Equal", 25, 31))
sketch1.addConstraint(Sketcher.Constraint("Equal", 28, 34))
sketch1.addConstraint(Sketcher.Constraint("Equal", 31, 37))
sketch1.addConstraint(Sketcher.Constraint("Equal", 34, 40))
sketch1.addConstraint(Sketcher.Constraint("Equal", 37, 43))
sketch1.addConstraint(Sketcher.Constraint("Equal", 40, 46))
sketch1.addConstraint(Sketcher.Constraint("Equal", 43, 49))
sketch1.addConstraint(Sketcher.Constraint("Equal", 46, 52))
sketch1.addConstraint(Sketcher.Constraint("Equal", 52, 58))
sketch1.addConstraint(Sketcher.Constraint("Equal", 49, 61))
sketch1.addConstraint(Sketcher.Constraint("Equal", 58, 64))
sketch1.addConstraint(Sketcher.Constraint("Equal", 61, 67))
sketch1.addConstraint(Sketcher.Constraint("Equal", 64, 70))
sketch1.addConstraint(Sketcher.Constraint("Equal", 67, 73))
sketch1.addConstraint(Sketcher.Constraint("Equal", 70, 76))
sketch1.addConstraint(Sketcher.Constraint("Equal", 73, 79))
sketch1.addConstraint(Sketcher.Constraint("Equal", 76, 82))
sketch1.addConstraint(Sketcher.Constraint("Equal", 79, 85))
sketch1.addConstraint(Sketcher.Constraint("Equal", 1, 7))
sketch1.addConstraint(Sketcher.Constraint("Radius", 3, Q("2.4 mm")))
sketch1.addConstraint(Sketcher.Constraint("DistanceX", 11, 1, 11, 2, Q("1101 mm")))
sketch1.addConstraint(Sketcher.Constraint("DistanceX", 25, 2, 25, 1, Q("50 mm")))
sketch1.addConstraint(Sketcher.Constraint("DistanceX", 55, 2, 55, 1, Q("25 mm")))
sketch1.addConstraint(Sketcher.Constraint("DistanceY", 1, 2, 1, 1, Q("47 mm")))
sketch1.addConstraint(Sketcher.Constraint("DistanceY", 24, 1, 24, 2, Q("8.732701 mm")))
sketch1.addConstraint(Sketcher.Constraint("DistanceX", 0, 2, 0, 1, Q("46.702411 mm")))
sketch1.addConstraint(Sketcher.Constraint("DistanceX", 2, 1, 2, 2, Q("8.72488 mm")))
sketch1.addConstraint(Sketcher.Constraint("DistanceX", 28, 2, 28, 1, Q("43.404821 mm")))
sketch1.addConstraint(Sketcher.Constraint("DistanceY", 4, 2, 4, 1, Q("40.439228 mm")))
sketch1.addConstraint(Sketcher.Constraint("DistanceY", 10, 2, 10, 1, Q("43.719614 mm")))
sketch1.addConstraint(Sketcher.Constraint("DistanceX", 3, 3, -1, 1, Q("387.678181 mm")))
sketch1.addConstraint(Sketcher.Constraint("DistanceX", -1, 1, 27, 3, Q("625.29935 mm")))
sketch1.addConstraint(Sketcher.Constraint("DistanceX", -1, 1, 33, 3, Q("525.29935 mm")))
sketch1.addConstraint(Sketcher.Constraint("DistanceY", -1, 1, 4, 2, Q("14.17727 mm")))
sketch1.addConstraint(Sketcher.Constraint("DistanceX", -1, 1, 27, 1, Q("623.220889 mm")))
pad1 = doc.addObject("PartDesign::Pad", "Pad")
body.addObject(pad1)
pad1.Profile = sketch1
pad1.Length = 12

doc.recompute()
